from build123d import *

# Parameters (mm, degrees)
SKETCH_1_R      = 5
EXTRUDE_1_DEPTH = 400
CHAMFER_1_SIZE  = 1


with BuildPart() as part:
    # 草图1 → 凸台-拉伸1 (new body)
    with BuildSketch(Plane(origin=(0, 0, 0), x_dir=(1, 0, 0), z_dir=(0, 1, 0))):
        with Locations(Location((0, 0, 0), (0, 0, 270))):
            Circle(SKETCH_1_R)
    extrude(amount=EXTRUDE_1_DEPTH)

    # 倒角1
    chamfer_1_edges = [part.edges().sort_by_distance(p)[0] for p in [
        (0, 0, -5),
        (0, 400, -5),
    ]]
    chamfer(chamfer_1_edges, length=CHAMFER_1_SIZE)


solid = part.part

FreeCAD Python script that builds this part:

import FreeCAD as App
import Part
import Sketcher
from FreeCAD import Vector
Q = App.Units.Quantity


def edges_at(feature, points):
    """Names of the edges that pass closest to the given points."""
    edges = feature.Shape.Edges
    near = lambda p: min(range(len(edges)), key=lambda i: edges[i].distToShape(Part.Vertex(*p))[0])
    return sorted({f"Edge{near(p) + 1}" for p in points})

doc = App.newDocument("Part")
body = doc.addObject("PartDesign::Body", "Body")

# Sketch on XZ plane
sketch1 = body.newObject("Sketcher::SketchObject", "Sketch")
sketch1.AttachmentSupport = (doc.getObject("XZ_Plane"), [""])
sketch1.MapMode = "FlatFace"
sketch1.addGeometry(Part.Circle(Vector(0, 0, 0), Vector(0, 0, 1), 5), False)
sketch1.addConstraint([
    Sketcher.Constraint("Coincident", 0, 3, -1, 1),
    Sketcher.Constraint("Diameter", 0, Q("10 mm")),
])
pad1 = body.newObject("PartDesign::Pad", "Pad")
pad1.Profile = sketch1
pad1.Length = 400
pad1.Reversed = True
doc.recompute()

chamfer = body.newObject("PartDesign::Chamfer", "Chamfer")
chamfer.Base = (pad1, edges_at(pad1, [(0, 0, -5), (0, 400, -5)]))
chamfer.Size = 1

doc.recompute()
